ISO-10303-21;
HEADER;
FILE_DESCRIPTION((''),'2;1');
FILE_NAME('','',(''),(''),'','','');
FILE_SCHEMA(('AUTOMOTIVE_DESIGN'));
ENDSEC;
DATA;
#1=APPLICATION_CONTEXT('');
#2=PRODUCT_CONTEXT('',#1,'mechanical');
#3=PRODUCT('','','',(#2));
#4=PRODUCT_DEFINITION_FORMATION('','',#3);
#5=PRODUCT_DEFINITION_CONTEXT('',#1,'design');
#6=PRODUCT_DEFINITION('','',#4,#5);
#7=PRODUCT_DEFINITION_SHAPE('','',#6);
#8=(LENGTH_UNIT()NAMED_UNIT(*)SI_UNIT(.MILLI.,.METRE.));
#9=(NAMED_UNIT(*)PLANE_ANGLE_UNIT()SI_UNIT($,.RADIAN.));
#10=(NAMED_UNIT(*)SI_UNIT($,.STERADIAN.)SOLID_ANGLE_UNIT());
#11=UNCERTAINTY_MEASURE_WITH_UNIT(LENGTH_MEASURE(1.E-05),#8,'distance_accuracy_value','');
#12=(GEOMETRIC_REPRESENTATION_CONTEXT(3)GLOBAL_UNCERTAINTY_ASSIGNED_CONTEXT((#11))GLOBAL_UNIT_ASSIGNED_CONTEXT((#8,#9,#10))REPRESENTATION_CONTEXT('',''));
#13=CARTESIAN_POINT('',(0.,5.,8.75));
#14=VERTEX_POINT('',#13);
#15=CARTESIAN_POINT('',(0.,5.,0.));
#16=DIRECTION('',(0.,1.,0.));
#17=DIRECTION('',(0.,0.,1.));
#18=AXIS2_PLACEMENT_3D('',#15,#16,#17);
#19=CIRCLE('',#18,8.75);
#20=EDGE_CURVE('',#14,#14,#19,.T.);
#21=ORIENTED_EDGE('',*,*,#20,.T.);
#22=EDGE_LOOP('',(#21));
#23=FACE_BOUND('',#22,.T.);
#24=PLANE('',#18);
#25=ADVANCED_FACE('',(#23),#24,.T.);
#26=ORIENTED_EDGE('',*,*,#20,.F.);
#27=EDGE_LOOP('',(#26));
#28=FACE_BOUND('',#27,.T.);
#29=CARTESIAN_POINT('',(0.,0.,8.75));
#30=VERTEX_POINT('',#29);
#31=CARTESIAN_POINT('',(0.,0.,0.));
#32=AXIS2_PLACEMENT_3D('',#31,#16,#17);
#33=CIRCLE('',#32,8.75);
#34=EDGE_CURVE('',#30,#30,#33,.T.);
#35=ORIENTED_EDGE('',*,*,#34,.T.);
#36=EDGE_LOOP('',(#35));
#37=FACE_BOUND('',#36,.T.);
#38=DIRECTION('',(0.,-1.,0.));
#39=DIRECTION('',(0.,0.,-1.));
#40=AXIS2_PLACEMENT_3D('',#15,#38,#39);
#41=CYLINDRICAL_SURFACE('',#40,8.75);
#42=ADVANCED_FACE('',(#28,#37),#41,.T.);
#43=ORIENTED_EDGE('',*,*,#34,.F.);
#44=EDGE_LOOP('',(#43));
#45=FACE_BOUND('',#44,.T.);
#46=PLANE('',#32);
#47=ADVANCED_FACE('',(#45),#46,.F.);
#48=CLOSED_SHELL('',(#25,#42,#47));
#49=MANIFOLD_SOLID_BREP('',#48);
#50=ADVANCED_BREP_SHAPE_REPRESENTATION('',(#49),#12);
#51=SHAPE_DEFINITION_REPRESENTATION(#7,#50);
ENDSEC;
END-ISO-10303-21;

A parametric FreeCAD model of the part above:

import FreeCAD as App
import Part
import Sketcher

V = App.Vector
Q = App.Units.Quantity

doc = App.newDocument("Part")
params = doc.addObject("Spreadsheet::Sheet", "Params")
for row, (alias, value) in enumerate([
    ("sketch1_diameter", "17.5 mm"),
    ("pad1_length", "5 mm"),
], start=1):
    params.set(f"A{row}", alias)
    params.set(f"B{row}", "=" + value)
    params.setAlias(f"B{row}", alias)

body = doc.addObject("PartDesign::Body", "Body")

sketch1 = body.newObject("Sketcher::SketchObject", "Sketch")
sketch1.AttachmentSupport = (doc.getObject("XZ_Plane"), [""])
sketch1.MapMode = "FlatFace"
sketch1.addGeometry(Part.Circle(V(0, 0, 0), V(0, 0, 1), 8.75), False)
sketch1.addConstraint([
    Sketcher.Constraint("Coincident", 0, 3, -1, 1),
    Sketcher.Constraint("Diameter", 0, Q("17.5 mm")),
])
sketch1.setExpression("Constraints[1]", "Params.sketch1_diameter")
pad1 = body.newObject("PartDesign::Pad", "Pad")
pad1.Profile = sketch1
pad1.setExpression("Length", "Params.pad1_length")
pad1.Reversed = True

doc.recompute()
